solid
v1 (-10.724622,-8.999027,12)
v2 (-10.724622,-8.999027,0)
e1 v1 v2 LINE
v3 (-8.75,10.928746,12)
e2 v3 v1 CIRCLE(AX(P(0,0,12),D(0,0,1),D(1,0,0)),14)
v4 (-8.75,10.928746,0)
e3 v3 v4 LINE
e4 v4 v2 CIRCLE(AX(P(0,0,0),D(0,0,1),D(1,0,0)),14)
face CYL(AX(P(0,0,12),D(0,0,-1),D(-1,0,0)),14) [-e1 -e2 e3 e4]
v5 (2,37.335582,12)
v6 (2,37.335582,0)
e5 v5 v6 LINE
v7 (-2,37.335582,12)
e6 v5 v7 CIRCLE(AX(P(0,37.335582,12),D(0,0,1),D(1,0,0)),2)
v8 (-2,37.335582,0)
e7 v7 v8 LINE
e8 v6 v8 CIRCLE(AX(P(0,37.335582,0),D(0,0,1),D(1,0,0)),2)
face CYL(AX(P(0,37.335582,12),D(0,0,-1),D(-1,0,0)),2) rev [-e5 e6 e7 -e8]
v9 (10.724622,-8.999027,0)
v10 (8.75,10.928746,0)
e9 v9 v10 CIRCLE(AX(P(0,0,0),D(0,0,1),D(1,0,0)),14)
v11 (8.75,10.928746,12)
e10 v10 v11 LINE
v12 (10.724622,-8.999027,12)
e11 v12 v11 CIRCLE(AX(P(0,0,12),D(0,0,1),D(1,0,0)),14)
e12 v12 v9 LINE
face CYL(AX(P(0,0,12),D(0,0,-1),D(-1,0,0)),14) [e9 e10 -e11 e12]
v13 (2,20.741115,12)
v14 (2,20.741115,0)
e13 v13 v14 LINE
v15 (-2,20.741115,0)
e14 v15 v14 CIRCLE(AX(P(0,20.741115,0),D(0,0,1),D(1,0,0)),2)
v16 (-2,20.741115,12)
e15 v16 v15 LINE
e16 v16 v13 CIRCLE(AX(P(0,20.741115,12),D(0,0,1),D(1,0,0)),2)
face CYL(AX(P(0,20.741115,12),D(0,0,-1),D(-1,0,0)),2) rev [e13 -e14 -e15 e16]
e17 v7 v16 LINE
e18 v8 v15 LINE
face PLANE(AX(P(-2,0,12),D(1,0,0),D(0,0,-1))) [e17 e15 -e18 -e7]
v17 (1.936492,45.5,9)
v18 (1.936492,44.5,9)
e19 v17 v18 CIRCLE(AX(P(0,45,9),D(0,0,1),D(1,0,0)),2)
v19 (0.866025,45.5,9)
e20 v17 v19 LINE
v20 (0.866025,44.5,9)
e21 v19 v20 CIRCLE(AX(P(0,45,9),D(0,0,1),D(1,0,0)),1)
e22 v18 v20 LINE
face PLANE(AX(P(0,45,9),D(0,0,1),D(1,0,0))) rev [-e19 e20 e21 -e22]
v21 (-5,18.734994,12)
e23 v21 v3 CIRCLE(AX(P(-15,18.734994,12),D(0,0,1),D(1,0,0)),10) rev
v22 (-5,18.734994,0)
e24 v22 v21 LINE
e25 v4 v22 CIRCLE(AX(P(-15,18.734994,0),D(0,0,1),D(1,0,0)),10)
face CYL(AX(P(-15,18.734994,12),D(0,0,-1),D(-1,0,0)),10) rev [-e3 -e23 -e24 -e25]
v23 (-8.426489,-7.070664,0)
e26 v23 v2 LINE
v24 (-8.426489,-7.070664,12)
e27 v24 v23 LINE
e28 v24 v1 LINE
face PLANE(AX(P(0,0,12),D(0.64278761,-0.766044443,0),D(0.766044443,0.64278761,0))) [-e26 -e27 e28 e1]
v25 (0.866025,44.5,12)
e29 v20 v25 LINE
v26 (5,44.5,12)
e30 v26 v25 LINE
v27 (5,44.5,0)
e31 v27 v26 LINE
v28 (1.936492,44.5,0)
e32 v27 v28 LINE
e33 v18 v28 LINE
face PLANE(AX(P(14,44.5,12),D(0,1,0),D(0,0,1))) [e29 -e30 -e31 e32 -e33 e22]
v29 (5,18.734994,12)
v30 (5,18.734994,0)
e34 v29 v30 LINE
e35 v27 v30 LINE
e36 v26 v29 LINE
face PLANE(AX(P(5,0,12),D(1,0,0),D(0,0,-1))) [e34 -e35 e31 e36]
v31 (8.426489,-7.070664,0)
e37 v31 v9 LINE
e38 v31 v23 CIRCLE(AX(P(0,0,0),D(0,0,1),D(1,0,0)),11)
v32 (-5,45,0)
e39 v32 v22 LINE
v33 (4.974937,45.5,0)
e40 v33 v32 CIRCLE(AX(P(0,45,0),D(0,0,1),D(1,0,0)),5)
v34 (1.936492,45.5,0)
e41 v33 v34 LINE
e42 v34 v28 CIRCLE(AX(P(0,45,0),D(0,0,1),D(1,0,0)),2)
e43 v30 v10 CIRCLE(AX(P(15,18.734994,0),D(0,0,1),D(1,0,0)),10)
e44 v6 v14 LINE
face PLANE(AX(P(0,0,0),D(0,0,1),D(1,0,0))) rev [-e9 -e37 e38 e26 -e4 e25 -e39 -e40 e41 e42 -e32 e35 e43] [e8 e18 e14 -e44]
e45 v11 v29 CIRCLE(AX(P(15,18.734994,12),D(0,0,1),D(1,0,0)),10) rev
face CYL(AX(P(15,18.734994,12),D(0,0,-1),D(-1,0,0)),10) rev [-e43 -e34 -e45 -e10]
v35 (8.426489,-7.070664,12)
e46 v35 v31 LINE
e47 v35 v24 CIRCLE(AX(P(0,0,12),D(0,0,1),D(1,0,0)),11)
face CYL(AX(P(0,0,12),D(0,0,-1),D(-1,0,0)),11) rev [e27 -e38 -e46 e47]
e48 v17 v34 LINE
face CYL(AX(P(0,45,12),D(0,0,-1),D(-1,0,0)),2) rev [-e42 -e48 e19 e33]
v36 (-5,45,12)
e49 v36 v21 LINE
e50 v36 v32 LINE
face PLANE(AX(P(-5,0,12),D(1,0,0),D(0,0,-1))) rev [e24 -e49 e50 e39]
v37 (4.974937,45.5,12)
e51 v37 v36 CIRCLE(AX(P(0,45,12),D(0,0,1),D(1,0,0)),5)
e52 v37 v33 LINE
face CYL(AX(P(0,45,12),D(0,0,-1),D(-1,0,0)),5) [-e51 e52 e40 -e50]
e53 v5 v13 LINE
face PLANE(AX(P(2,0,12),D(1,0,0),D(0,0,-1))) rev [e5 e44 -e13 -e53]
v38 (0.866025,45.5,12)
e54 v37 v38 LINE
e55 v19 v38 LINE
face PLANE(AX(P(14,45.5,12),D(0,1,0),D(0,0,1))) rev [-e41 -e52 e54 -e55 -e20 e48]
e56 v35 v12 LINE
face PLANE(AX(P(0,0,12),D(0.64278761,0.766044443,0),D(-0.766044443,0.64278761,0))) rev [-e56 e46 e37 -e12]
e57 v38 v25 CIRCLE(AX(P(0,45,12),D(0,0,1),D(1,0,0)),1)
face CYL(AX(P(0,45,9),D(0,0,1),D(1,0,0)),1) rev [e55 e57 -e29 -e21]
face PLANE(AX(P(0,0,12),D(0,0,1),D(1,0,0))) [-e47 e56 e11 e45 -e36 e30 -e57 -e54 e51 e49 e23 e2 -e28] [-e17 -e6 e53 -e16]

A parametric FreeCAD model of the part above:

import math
import FreeCAD as App
import Part
import Sketcher

V = App.Vector
Q = App.Units.Quantity


def edges_at(feature, points):
    """Names of the edges that pass closest to the given points."""
    edges = feature.Shape.Edges
    near = lambda p: min(range(len(edges)), key=lambda i: edges[i].distToShape(Part.Vertex(*p))[0])
    return sorted({f"Edge{near(p) + 1}" for p in points})


def add_polygon(sketch, points):
    """Adds a closed chain of lines whose ends are joined by coincident constraints."""
    first, n = sketch.GeometryCount, len(points)
    for a, b in zip(points, points[1:] + points[:1]):
        sketch.addGeometry(Part.LineSegment(App.Vector(*a, 0), App.Vector(*b, 0)), False)
    for i in range(n):
        sketch.addConstraint(Sketcher.Constraint("Coincident", first + i, 2, first + (i + 1) % n, 1))

doc = App.newDocument("Part")
body = doc.addObject("PartDesign::Body", "Body")

# Sketch on XY plane
sketch1 = body.newObject("Sketcher::SketchObject", "Sketch")
sketch1.AttachmentSupport = (doc.getObject("XY_Plane"), [""])
sketch1.MapMode = "FlatFace"
sketch1.addGeometry([
    Part.LineSegment(V(5, 13.076697, 0), V(5, 45, 0)),  # 0
    Part.ArcOfCircle(Part.Circle(V(0, 45, 0), V(0, 0, 1), 5), math.radians(0), math.radians(180)),  # 1
    Part.LineSegment(V(-5, 45, 0), V(-5, 13.076697, 0)),  # 2
    Part.ArcOfCircle(Part.Circle(V(0, 0, 0), V(0, 0, 1), 14), math.radians(110.924832), math.radians(220)),  # 3
    Part.LineSegment(V(-10.724622, -8.999027, 0), V(-8.426489, -7.070664, 0)),  # 4
    Part.ArcOfCircle(Part.Circle(V(0, 0, 0), V(0, 0, 1), 11), math.radians(0), math.radians(220)),  # 5
    Part.ArcOfCircle(Part.Circle(V(0, 0, 0), V(0, 0, 1), 11), math.radians(-40), math.radians(0)),  # 6
    Part.LineSegment(V(8.426489, -7.070664, 0), V(10.724622, -8.999027, 0)),  # 7
    Part.ArcOfCircle(Part.Circle(V(0, 0, 0), V(0, 0, 1), 14), math.radians(-40), math.radians(69.075168)),  # 8
    Part.LineSegment(V(-2, 20.741115, 0), V(-2, 37.335582, 0)),  # 9
    Part.ArcOfCircle(Part.Circle(V(0, 37.335582, 0), V(0, 0, 1), 2), math.radians(0), math.radians(180)),  # 10
    Part.LineSegment(V(2, 37.335582, 0), V(2, 20.741115, 0)),  # 11
    Part.ArcOfCircle(Part.Circle(V(0, 20.741115, 0), V(0, 0, 1), 2), math.radians(180), math.radians(360)),  # 12
    Part.Circle(V(0, 45, 0), V(0, 0, 1), 2),  # 13
], False)
sketch1.addConstraint([
    Sketcher.Constraint("Tangent", 0, 2, 1, 1),
    Sketcher.Constraint("Tangent", 1, 2, 2, 1),
    Sketcher.Constraint("Coincident", 2, 2, 3, 1),
    Sketcher.Constraint("Coincident", 3, 2, 4, 1),
    Sketcher.Constraint("Coincident", 4, 2, 5, 2),
    Sketcher.Constraint("Tangent", 5, 1, 6, 2),
    Sketcher.Constraint("Coincident", 6, 1, 7, 1),
    Sketcher.Constraint("Coincident", 7, 2, 8, 1),
    Sketcher.Constraint("Coincident", 8, 2, 0, 1),
    Sketcher.Constraint("Tangent", 9, 2, 10, 2),
    Sketcher.Constraint("Tangent", 10, 1, 11, 1),
    Sketcher.Constraint("Tangent", 11, 2, 12, 2),
    Sketcher.Constraint("Tangent", 12, 1, 9, 1),
    Sketcher.Constraint("Vertical", 0),
    Sketcher.Constraint("Vertical", 2),
    Sketcher.Constraint("Vertical", 9),
    Sketcher.Constraint("Vertical", 11),
    Sketcher.Constraint("Coincident", 3, 3, -1, 1),
    Sketcher.Constraint("Coincident", 5, 3, -1, 1),
    Sketcher.Constraint("Coincident", 8, 3, -1, 1),
    Sketcher.Constraint("Coincident", 13, 3, 1, 3),
    Sketcher.Constraint("Equal", 5, 6),
    Sketcher.Constraint("Equal", 3, 8),
    Sketcher.Constraint("Equal", 12, 13),
    Sketcher.Constraint("PointOnObject", 1, 3, -2),
    Sketcher.Constraint("PointOnObject", 10, 3, -2),
    Sketcher.Constraint("PointOnObject", 5, 1, -1),
    Sketcher.Constraint("Horizontal", 4, 2, 6, 1),
    Sketcher.Constraint("Horizontal", 3, 2, 7, 2),
    Sketcher.Constraint("Diameter", 13, Q("4 mm")),
    Sketcher.Constraint("Radius", 1, Q("5 mm")),
    Sketcher.Constraint("Radius", 3, Q("14 mm")),
    Sketcher.Constraint("Radius", 5, Q("11 mm")),
    Sketcher.Constraint("Angle", 4, Q("40 deg")),
    Sketcher.Constraint("DistanceY", -1, 1, 1, 3, Q("45 mm")),
    Sketcher.Constraint("DistanceY", 9, 1, 9, 2, Q("16.594467 mm")),
    Sketcher.Constraint("DistanceX", 4, 2, -1, 1, Q("8.426489 mm")),
    Sketcher.Constraint("DistanceY", -1, 1, 10, 3, Q("37.335582 mm")),
])
pad1 = body.newObject("PartDesign::Pad", "Pad")
pad1.Profile = sketch1
pad1.Length = 12

# Sketch on XY plane
sketch2 = body.newObject("Sketcher::SketchObject", "Sketch001")
sketch2.AttachmentSupport = (doc.getObject("XY_Plane"), [""])
sketch2.MapMode = "FlatFace"
sketch2.AttachmentOffset = App.Placement(V(0, 0, 12), App.Rotation())
sketch2.addGeometry([
    Part.Circle(V(0, 45, 0), V(0, 0, 1), 2),
    Part.Circle(V(0, 45, 0), V(0, 0, 1), 1),
], False)
sketch2.addConstraint([
    Sketcher.Constraint("Coincident", 1, 3, 0, 3),
    Sketcher.Constraint("PointOnObject", 0, 3, -2),
    Sketcher.Constraint("Diameter", 0, Q("4 mm")),
    Sketcher.Constraint("Diameter", 1, Q("2 mm")),
    Sketcher.Constraint("DistanceY", -1, 1, 0, 3, Q("45 mm")),
])
pad2 = body.newObject("PartDesign::Pad", "Pad001")
pad2.Profile = sketch2
pad2.Length = 3
pad2.Reversed = True
doc.recompute()

fillet = body.newObject("PartDesign::Fillet", "Fillet")
fillet.Base = (pad2, edges_at(pad2, [(5, 13.077, 6), (-5, 13.077, 6)]))
fillet.Radius = 10

# Sketch on YZ plane
sketch3 = body.newObject("Sketcher::SketchObject", "Sketch002")
sketch3.AttachmentSupport = (doc.getObject("YZ_Plane"), [""])
sketch3.MapMode = "FlatFace"
sketch3.AttachmentOffset = App.Placement(V(0, 0, 5), App.Rotation())
add_polygon(sketch3, [(45.5, 12), (44.5, 12), (44.5, 0), (45.5, 0)])  # lines 0-3
sketch3.addConstraint([
    Sketcher.Constraint("Horizontal", 0),
    Sketcher.Constraint("Vertical", 1),
    Sketcher.Constraint("Horizontal", 2),
    Sketcher.Constraint("Vertical", 3),
    Sketcher.Constraint("PointOnObject", 1, 2, -1),
    Sketcher.Constraint("DistanceX", 0, 2, 0, 1, Q("1 mm")),
    Sketcher.Constraint("DistanceY", 1, 2, 1, 1, Q("12 mm")),
    Sketcher.Constraint("DistanceX", -1, 1, 0, 2, Q("44.5 mm")),
])
pocket1 = body.newObject("PartDesign::Pocket", "Pocket")
pocket1.Profile = sketch3
pocket1.Type = "TwoLengths"
pocket1.Length = 10
pocket1.Length2 = 5
pocket1.Reversed = True

doc.recompute()
